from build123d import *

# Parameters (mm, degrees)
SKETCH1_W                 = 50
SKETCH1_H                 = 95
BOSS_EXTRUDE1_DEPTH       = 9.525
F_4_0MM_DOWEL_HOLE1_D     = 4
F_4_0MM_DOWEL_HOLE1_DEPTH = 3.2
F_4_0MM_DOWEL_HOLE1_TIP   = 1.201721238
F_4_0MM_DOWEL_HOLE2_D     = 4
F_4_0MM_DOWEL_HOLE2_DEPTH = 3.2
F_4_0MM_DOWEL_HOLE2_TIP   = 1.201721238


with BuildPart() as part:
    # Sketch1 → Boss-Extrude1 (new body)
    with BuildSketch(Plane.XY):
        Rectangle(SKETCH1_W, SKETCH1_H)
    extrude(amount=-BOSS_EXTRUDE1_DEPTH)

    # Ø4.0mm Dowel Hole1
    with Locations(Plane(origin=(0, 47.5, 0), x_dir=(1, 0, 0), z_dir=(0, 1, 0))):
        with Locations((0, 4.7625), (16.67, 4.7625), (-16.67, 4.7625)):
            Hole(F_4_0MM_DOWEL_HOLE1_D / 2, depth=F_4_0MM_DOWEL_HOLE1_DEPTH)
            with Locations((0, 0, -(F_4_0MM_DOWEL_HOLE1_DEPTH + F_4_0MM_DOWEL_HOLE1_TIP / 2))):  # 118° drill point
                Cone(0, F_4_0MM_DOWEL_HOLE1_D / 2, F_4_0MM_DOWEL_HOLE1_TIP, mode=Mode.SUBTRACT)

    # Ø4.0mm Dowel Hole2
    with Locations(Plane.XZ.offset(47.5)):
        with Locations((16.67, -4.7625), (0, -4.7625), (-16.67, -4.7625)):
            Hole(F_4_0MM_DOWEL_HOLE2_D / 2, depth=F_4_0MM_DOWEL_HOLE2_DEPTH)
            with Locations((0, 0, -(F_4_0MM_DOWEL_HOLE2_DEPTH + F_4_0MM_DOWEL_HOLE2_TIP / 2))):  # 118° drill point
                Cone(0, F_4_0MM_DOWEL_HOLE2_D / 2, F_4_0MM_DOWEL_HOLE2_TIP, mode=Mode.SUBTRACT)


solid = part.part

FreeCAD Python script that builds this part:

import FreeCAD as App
import Part
import Sketcher
from FreeCAD import Vector
Q = App.Units.Quantity


def add_polygon(sketch, points):
    """Adds a closed chain of lines whose ends are joined by coincident constraints."""
    first, n = sketch.GeometryCount, len(points)
    for a, b in zip(points, points[1:] + points[:1]):
        sketch.addGeometry(Part.LineSegment(App.Vector(*a, 0), App.Vector(*b, 0)), False)
    for i in range(n):
        sketch.addConstraint(Sketcher.Constraint("Coincident", first + i, 2, first + (i + 1) % n, 1))

doc = App.newDocument("Part")
params = doc.addObject("Spreadsheet::Sheet", "Params")
for row, (alias, value) in enumerate([
    ("sketch1_width", "50 mm"),
    ("sketch1_height", "95 mm"),
    ("pad1_length", "9.525 mm"),
    ("sketch2_diameter", "4 mm"),
    ("hole_diameter", "4 mm"),
    ("hole_depth", "3.2 mm"),
    ("sketch3_diameter", "4 mm"),
    ("hole2_diameter", "4 mm"),
    ("hole2_depth", "3.2 mm"),
], start=1):
    params.set(f"A{row}", alias)
    params.set(f"B{row}", "=" + value)
    params.setAlias(f"B{row}", alias)

body = doc.addObject("PartDesign::Body", "Body")

# Sketch on XY plane
sketch1 = doc.addObject("Sketcher::SketchObject", "Sketch")
body.addObject(sketch1)
sketch1.AttachmentSupport = (doc.XY_Plane, [""])
sketch1.MapMode = "FlatFace"
add_polygon(sketch1, [(-25, 47.5), (-25, -47.5), (25, -47.5), (25, 47.5)])  # lines 0-3
sketch1.addConstraint([
    Sketcher.Constraint("Vertical", 0),
    Sketcher.Constraint("Horizontal", 1),
    Sketcher.Constraint("Vertical", 2),
    Sketcher.Constraint("Horizontal", 3),
    Sketcher.Constraint("Symmetric", 0, 2, 2, 2, -1, 1),
    Sketcher.Constraint("DistanceX", 1, 1, 1, 2, Q("50 mm")),
    Sketcher.Constraint("DistanceY", 0, 2, 0, 1, Q("95 mm")),
])
sketch1.setExpression("Constraints[9]", "Params.sketch1_width")
sketch1.setExpression("Constraints[10]", "Params.sketch1_height")
pad1 = doc.addObject("PartDesign::Pad", "Pad")
body.addObject(pad1)
pad1.Profile = sketch1
pad1.setExpression("Length", "Params.pad1_length")
pad1.Reversed = True

# Sketch on XZ plane
sketch2 = doc.addObject("Sketcher::SketchObject", "Sketch001")
body.addObject(sketch2)
sketch2.AttachmentSupport = (doc.XZ_Plane, [""])
sketch2.MapMode = "FlatFace"
sketch2.AttachmentOffset = App.Placement(Vector(0, 0, -47.5), App.Rotation())
sketch2.addGeometry([
    Part.Circle(Vector(0, -4.7625, 0), Vector(0, 0, 1), 2),
    Part.Circle(Vector(16.67, -4.7625, 0), Vector(0, 0, 1), 2),
    Part.Circle(Vector(-16.67, -4.7625, 0), Vector(0, 0, 1), 2),
], False)
sketch2.addConstraint([
    Sketcher.Constraint("Equal", 0, 1),
    Sketcher.Constraint("Equal", 1, 2),
    Sketcher.Constraint("Symmetric", 1, 3, 2, 3, -2),
    Sketcher.Constraint("PointOnObject", 0, 3, -2),
    Sketcher.Constraint("Horizontal", 0, 3, 1, 3),
    Sketcher.Constraint("Diameter", 0, Q("4 mm")),
    Sketcher.Constraint("DistanceX", -1, 1, 1, 3, Q("16.67 mm")),
    Sketcher.Constraint("DistanceY", 0, 3, -1, 1, Q("4.7625 mm")),
])
sketch2.setExpression("Constraints[5]", "Params.sketch2_diameter")
doc.recompute()
hole = doc.addObject("PartDesign::Hole", "Hole")
body.addObject(hole)
hole.Profile = sketch2
hole.ThreadType = "None"
hole.setExpression("Diameter", "Params.hole_diameter")
hole.DepthType = "Dimension"
hole.setExpression("Depth", "Params.hole_depth")
hole.DrillPoint = "Angled"
hole.DrillPointAngle = 118
hole.Reversed = True

# Sketch on XZ plane
sketch3 = doc.addObject("Sketcher::SketchObject", "Sketch002")
body.addObject(sketch3)
sketch3.AttachmentSupport = (doc.XZ_Plane, [""])
sketch3.MapMode = "FlatFace"
sketch3.AttachmentOffset = App.Placement(Vector(0, 0, 47.5), App.Rotation())
sketch3.addGeometry([
    Part.Circle(Vector(16.67, -4.7625, 0), Vector(0, 0, 1), 2),
    Part.Circle(Vector(0, -4.7625, 0), Vector(0, 0, 1), 2),
    Part.Circle(Vector(-16.67, -4.7625, 0), Vector(0, 0, 1), 2),
], False)
sketch3.addConstraint([
    Sketcher.Constraint("Equal", 0, 1),
    Sketcher.Constraint("Equal", 1, 2),
    Sketcher.Constraint("Symmetric", 0, 3, 2, 3, -2),
    Sketcher.Constraint("PointOnObject", 1, 3, -2),
    Sketcher.Constraint("Horizontal", 0, 3, 1, 3),
    Sketcher.Constraint("Diameter", 0, Q("4 mm")),
    Sketcher.Constraint("DistanceX", -1, 1, 0, 3, Q("16.67 mm")),
    Sketcher.Constraint("DistanceY", 0, 3, -1, 1, Q("4.7625 mm")),
])
sketch3.setExpression("Constraints[5]", "Params.sketch3_diameter")
doc.recompute()
hole2 = doc.addObject("PartDesign::Hole", "Hole001")
body.addObject(hole2)
hole2.Profile = sketch3
hole2.ThreadType = "None"
hole2.setExpression("Diameter", "Params.hole2_diameter")
hole2.DepthType = "Dimension"
hole2.setExpression("Depth", "Params.hole2_depth")
hole2.DrillPoint = "Angled"
hole2.DrillPointAngle = 118

doc.recompute()
